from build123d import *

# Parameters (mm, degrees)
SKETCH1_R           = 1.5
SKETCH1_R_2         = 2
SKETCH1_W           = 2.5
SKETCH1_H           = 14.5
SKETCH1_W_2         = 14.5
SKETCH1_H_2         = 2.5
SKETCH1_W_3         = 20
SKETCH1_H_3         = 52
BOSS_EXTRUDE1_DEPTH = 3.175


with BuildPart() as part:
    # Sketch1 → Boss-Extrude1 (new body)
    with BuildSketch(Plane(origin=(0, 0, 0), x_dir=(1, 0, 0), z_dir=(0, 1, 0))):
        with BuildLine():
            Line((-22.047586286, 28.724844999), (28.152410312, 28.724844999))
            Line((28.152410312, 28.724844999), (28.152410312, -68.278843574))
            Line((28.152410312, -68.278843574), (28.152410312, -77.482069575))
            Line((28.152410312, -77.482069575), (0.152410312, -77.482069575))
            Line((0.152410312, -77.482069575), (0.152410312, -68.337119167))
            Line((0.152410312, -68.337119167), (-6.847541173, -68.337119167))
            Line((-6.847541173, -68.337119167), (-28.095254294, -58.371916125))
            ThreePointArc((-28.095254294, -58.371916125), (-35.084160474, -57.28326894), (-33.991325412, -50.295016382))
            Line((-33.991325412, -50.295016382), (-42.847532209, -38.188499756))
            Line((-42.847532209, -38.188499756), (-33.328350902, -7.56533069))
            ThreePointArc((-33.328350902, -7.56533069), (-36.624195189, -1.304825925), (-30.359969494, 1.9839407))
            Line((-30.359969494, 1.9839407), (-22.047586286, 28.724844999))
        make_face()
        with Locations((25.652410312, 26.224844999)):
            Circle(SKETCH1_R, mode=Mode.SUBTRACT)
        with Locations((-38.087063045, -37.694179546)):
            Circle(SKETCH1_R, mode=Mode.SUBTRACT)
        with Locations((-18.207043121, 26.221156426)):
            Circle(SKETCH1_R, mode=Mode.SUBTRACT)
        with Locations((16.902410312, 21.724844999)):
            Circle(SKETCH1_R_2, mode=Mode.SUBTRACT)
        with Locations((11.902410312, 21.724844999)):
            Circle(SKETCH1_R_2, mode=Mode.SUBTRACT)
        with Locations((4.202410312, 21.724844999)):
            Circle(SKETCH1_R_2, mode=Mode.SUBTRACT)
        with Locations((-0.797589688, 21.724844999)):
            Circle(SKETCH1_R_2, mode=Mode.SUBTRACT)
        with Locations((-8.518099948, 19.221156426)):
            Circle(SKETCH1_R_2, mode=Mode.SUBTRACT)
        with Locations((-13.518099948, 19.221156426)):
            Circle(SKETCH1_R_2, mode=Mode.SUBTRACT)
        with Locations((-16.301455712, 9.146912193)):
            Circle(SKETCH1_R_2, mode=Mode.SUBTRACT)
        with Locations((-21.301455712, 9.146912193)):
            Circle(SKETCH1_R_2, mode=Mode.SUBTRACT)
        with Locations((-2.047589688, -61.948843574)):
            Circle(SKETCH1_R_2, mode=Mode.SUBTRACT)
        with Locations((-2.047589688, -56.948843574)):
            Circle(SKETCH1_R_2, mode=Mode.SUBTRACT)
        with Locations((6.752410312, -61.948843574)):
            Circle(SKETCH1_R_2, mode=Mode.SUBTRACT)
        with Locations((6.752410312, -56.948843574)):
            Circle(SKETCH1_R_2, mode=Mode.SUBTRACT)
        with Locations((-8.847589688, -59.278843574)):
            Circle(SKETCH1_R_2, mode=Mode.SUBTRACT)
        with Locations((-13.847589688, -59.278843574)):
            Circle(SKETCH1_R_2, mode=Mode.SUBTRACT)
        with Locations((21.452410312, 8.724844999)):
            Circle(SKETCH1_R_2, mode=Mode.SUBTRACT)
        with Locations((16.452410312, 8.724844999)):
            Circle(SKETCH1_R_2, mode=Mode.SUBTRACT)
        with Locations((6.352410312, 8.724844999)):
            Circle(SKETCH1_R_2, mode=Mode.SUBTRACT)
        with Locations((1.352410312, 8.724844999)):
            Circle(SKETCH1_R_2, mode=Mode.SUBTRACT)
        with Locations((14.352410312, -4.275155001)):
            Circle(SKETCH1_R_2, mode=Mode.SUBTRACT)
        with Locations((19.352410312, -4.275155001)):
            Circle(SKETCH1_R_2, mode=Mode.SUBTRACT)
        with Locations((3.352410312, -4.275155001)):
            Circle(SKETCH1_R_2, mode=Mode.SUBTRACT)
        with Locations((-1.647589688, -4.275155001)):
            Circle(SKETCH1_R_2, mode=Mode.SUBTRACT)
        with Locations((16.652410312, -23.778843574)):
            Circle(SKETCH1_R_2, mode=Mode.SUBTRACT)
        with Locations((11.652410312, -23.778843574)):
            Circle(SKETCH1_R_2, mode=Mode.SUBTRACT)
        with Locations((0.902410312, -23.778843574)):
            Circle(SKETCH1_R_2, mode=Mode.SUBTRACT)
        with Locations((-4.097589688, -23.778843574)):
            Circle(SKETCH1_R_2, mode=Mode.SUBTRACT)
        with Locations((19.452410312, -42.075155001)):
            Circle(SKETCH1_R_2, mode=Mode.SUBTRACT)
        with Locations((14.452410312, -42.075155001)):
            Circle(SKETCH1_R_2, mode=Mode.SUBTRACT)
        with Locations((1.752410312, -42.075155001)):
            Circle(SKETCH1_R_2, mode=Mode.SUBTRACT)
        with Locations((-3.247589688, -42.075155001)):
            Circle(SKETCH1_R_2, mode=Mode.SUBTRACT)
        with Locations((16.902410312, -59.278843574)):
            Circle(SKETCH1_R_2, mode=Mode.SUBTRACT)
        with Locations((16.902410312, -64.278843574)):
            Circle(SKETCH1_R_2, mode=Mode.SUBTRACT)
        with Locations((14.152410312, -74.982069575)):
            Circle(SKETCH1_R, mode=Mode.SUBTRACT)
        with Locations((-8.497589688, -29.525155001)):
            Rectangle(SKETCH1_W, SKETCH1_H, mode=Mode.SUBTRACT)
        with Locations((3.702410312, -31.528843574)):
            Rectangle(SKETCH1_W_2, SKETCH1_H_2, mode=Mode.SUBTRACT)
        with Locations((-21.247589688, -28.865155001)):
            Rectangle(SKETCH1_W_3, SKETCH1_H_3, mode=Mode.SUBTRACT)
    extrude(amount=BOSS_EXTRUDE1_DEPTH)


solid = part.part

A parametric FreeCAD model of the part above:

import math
import FreeCAD as App
import Part
import Sketcher

doc = App.newDocument("Part")
params = doc.addObject("Spreadsheet::Sheet", "Params")
for row, (alias, value) in enumerate([
    ("sketch1_diameter", "3 mm"),
    ("sketch1_diameter2", "4 mm"),
    ("sketch1_diameter3", "4 mm"),
    ("sketch1_diameter4", "4 mm"),
    ("sketch1_diameter5", "4 mm"),
    ("pad1_length", "3.175 mm"),
], start=1):
    params.set(f"A{row}", alias)
    params.set(f"B{row}", "=" + value)
    params.setAlias(f"B{row}", alias)

body = doc.addObject("PartDesign::Body", "Body")

sketch1 = doc.addObject("Sketcher::SketchObject", "Sketch")
body.addObject(sketch1)
sketch1.AttachmentSupport = (doc.XZ_Plane, [""])
sketch1.MapMode = "FlatFace"
sketch1.addGeometry([
    Part.LineSegment(App.Vector(28.15241, -28.724845, 0), App.Vector(-22.047586, -28.724845, 0)),
    Part.LineSegment(App.Vector(-22.047586, -28.724845, 0), App.Vector(-30.359969, -1.983941, 0)),
    Part.ArcOfCircle(Part.Circle(App.Vector(-31.849556, 2.789018, 0), App.Vector(0, 0, 1), 5), math.radians(107.203049), math.radians(287.33256)),
    Part.LineSegment(App.Vector(-33.328351, 7.565331, 0), App.Vector(-42.847532, 38.1885, 0)),
    Part.LineSegment(App.Vector(-42.847532, 38.1885, 0), App.Vector(-33.991325, 50.295016, 0)),
    Part.ArcOfCircle(Part.Circle(App.Vector(-31.04571, 54.335233, 0), App.Vector(0, 0, 1), 5), math.radians(53.836526), math.radians(233.905194)),
    Part.LineSegment(App.Vector(-28.095254, 58.371916, 0), App.Vector(-6.847541, 68.337119, 0)),
    Part.LineSegment(App.Vector(-6.847541, 68.337119, 0), App.Vector(0.15241, 68.337119, 0)),
    Part.LineSegment(App.Vector(0.15241, 68.337119, 0), App.Vector(0.15241, 77.48207, 0)),
    Part.LineSegment(App.Vector(0.15241, 77.48207, 0), App.Vector(28.15241, 77.48207, 0)),
    Part.LineSegment(App.Vector(28.15241, 77.48207, 0), App.Vector(28.15241, -28.724845, 0)),
    Part.Circle(App.Vector(14.15241, 74.98207, 0), App.Vector(0, 0, 1), 1.5),
    Part.Circle(App.Vector(16.90241, 64.278844, 0), App.Vector(0, 0, 1), 2),
    Part.Circle(App.Vector(16.90241, 59.278844, 0), App.Vector(0, 0, 1), 2),
    Part.Circle(App.Vector(6.75241, 61.948844, 0), App.Vector(0, 0, 1), 2),
    Part.Circle(App.Vector(6.75241, 56.948844, 0), App.Vector(0, 0, 1), 2),
    Part.Circle(App.Vector(-2.04759, 61.948844, 0), App.Vector(0, 0, 1), 2),
    Part.Circle(App.Vector(-2.04759, 56.948844, 0), App.Vector(0, 0, 1), 2),
    Part.Circle(App.Vector(19.45241, 42.075155, 0), App.Vector(0, 0, 1), 2),
    Part.Circle(App.Vector(14.45241, 42.075155, 0), App.Vector(0, 0, 1), 2),
    Part.Circle(App.Vector(1.75241, 42.075155, 0), App.Vector(0, 0, 1), 2),
    Part.Circle(App.Vector(-3.24759, 42.075155, 0), App.Vector(0, 0, 1), 2),
    Part.LineSegment(App.Vector(-3.54759, 32.778844, 0), App.Vector(-3.54759, 30.278844, 0)),
    Part.LineSegment(App.Vector(-3.54759, 30.278844, 0), App.Vector(10.95241, 30.278844, 0)),
    Part.LineSegment(App.Vector(10.95241, 30.278844, 0), App.Vector(10.95241, 32.778844, 0)),
    Part.LineSegment(App.Vector(10.95241, 32.778844, 0), App.Vector(-3.54759, 32.778844, 0)),
    Part.Circle(App.Vector(-8.84759, 59.278844, 0), App.Vector(0, 0, 1), 2),
    Part.Circle(App.Vector(-13.84759, 59.278844, 0), App.Vector(0, 0, 1), 2),
    Part.LineSegment(App.Vector(-9.74759, 36.775155, 0), App.Vector(-9.74759, 22.275155, 0)),
    Part.LineSegment(App.Vector(-9.74759, 22.275155, 0), App.Vector(-7.24759, 22.275155, 0)),
    Part.LineSegment(App.Vector(-7.24759, 22.275155, 0), App.Vector(-7.24759, 36.775155, 0)),
    Part.LineSegment(App.Vector(-7.24759, 36.775155, 0), App.Vector(-9.74759, 36.775155, 0)),
    Part.LineSegment(App.Vector(-31.24759, 54.865155, 0), App.Vector(-31.24759, 2.865155, 0)),
    Part.LineSegment(App.Vector(-31.24759, 2.865155, 0), App.Vector(-11.24759, 2.865155, 0)),
    Part.LineSegment(App.Vector(-11.24759, 2.865155, 0), App.Vector(-11.24759, 54.865155, 0)),
    Part.LineSegment(App.Vector(-11.24759, 54.865155, 0), App.Vector(-31.24759, 54.865155, 0)),
    Part.Circle(App.Vector(-38.087063, 37.69418, 0), App.Vector(0, 0, 1), 1.5),
    Part.Circle(App.Vector(16.65241, 23.778844, 0), App.Vector(0, 0, 1), 2),
    Part.Circle(App.Vector(11.65241, 23.778844, 0), App.Vector(0, 0, 1), 2),
    Part.Circle(App.Vector(19.35241, 4.275155, 0), App.Vector(0, 0, 1), 2),
    Part.Circle(App.Vector(14.35241, 4.275155, 0), App.Vector(0, 0, 1), 2),
    Part.Circle(App.Vector(0.90241, 23.778844, 0), App.Vector(0, 0, 1), 2),
    Part.Circle(App.Vector(-4.09759, 23.778844, 0), App.Vector(0, 0, 1), 2),
    Part.Circle(App.Vector(3.35241, 4.275155, 0), App.Vector(0, 0, 1), 2),
    Part.Circle(App.Vector(-1.64759, 4.275155, 0), App.Vector(0, 0, 1), 2),
    Part.Circle(App.Vector(21.45241, -8.724845, 0), App.Vector(0, 0, 1), 2),
    Part.Circle(App.Vector(16.45241, -8.724845, 0), App.Vector(0, 0, 1), 2),
    Part.Circle(App.Vector(25.65241, -26.224845, 0), App.Vector(0, 0, 1), 1.5),
    Part.Circle(App.Vector(16.90241, -21.724845, 0), App.Vector(0, 0, 1), 2),
    Part.Circle(App.Vector(11.90241, -21.724845, 0), App.Vector(0, 0, 1), 2),
    Part.Circle(App.Vector(6.35241, -8.724845, 0), App.Vector(0, 0, 1), 2),
    Part.Circle(App.Vector(1.35241, -8.724845, 0), App.Vector(0, 0, 1), 2),
    Part.Circle(App.Vector(4.20241, -21.724845, 0), App.Vector(0, 0, 1), 2),
    Part.Circle(App.Vector(-0.79759, -21.724845, 0), App.Vector(0, 0, 1), 2),
    Part.Circle(App.Vector(-16.301456, -9.146912, 0), App.Vector(0, 0, 1), 2),
    Part.Circle(App.Vector(-21.301456, -9.146912, 0), App.Vector(0, 0, 1), 2),
    Part.Circle(App.Vector(-8.5181, -19.221156, 0), App.Vector(0, 0, 1), 2),
    Part.Circle(App.Vector(-13.5181, -19.221156, 0), App.Vector(0, 0, 1), 2),
    Part.Circle(App.Vector(-18.207043, -26.221156, 0), App.Vector(0, 0, 1), 1.5),
], False)
sketch1.addConstraint([
    Sketcher.Constraint("Coincident", 0, 2, 1, 1),
    Sketcher.Constraint("Coincident", 1, 2, 2, 2),
    Sketcher.Constraint("Coincident", 2, 1, 3, 1),
    Sketcher.Constraint("Coincident", 3, 2, 4, 1),
    Sketcher.Constraint("Coincident", 4, 2, 5, 2),
    Sketcher.Constraint("Coincident", 5, 1, 6, 1),
    Sketcher.Constraint("Coincident", 6, 2, 7, 1),
    Sketcher.Constraint("Coincident", 7, 2, 8, 1),
    Sketcher.Constraint("Coincident", 8, 2, 9, 1),
    Sketcher.Constraint("Coincident", 9, 2, 10, 1),
    Sketcher.Constraint("Coincident", 10, 2, 0, 1),
    Sketcher.Constraint("Coincident", 22, 2, 23, 1),
    Sketcher.Constraint("Coincident", 23, 2, 24, 1),
    Sketcher.Constraint("Coincident", 24, 2, 25, 1),
    Sketcher.Constraint("Coincident", 25, 2, 22, 1),
    Sketcher.Constraint("Coincident", 28, 2, 29, 1),
    Sketcher.Constraint("Coincident", 29, 2, 30, 1),
    Sketcher.Constraint("Coincident", 30, 2, 31, 1),
    Sketcher.Constraint("Coincident", 31, 2, 28, 1),
    Sketcher.Constraint("Coincident", 32, 2, 33, 1),
    Sketcher.Constraint("Coincident", 33, 2, 34, 1),
    Sketcher.Constraint("Coincident", 34, 2, 35, 1),
    Sketcher.Constraint("Coincident", 35, 2, 32, 1),
    Sketcher.Constraint("Horizontal", 0),
    Sketcher.Constraint("Horizontal", 7),
    Sketcher.Constraint("Vertical", 8),
    Sketcher.Constraint("Horizontal", 9),
    Sketcher.Constraint("Vertical", 10),
    Sketcher.Constraint("Vertical", 22),
    Sketcher.Constraint("Horizontal", 23),
    Sketcher.Constraint("Vertical", 24),
    Sketcher.Constraint("Horizontal", 25),
    Sketcher.Constraint("Vertical", 28),
    Sketcher.Constraint("Horizontal", 29),
    Sketcher.Constraint("Vertical", 30),
    Sketcher.Constraint("Horizontal", 31),
    Sketcher.Constraint("Vertical", 32),
    Sketcher.Constraint("Horizontal", 33),
    Sketcher.Constraint("Vertical", 34),
    Sketcher.Constraint("Horizontal", 35),
    Sketcher.Constraint("Diameter", 11, 3.0),
    Sketcher.Constraint("Diameter", 12, 4.0),
    Sketcher.Constraint("Diameter", 13, 4.0),
    Sketcher.Constraint("Diameter", 14, 4.0),
    Sketcher.Constraint("Diameter", 15, 4.0),
    Sketcher.Constraint("Diameter", 16, 4.0),
    Sketcher.Constraint("Diameter", 17, 4.0),
    Sketcher.Constraint("Diameter", 18, 4.0),
    Sketcher.Constraint("Diameter", 19, 4.0),
    Sketcher.Constraint("Diameter", 20, 4.0),
    Sketcher.Constraint("Diameter", 21, 4.0),
    Sketcher.Constraint("Diameter", 26, 4.0),
    Sketcher.Constraint("Diameter", 27, 4.0),
    Sketcher.Constraint("Diameter", 36, 3.0),
    Sketcher.Constraint("Diameter", 37, 4.0),
    Sketcher.Constraint("Diameter", 38, 4.0),
    Sketcher.Constraint("Diameter", 39, 4.0),
    Sketcher.Constraint("Diameter", 40, 4.0),
    Sketcher.Constraint("Diameter", 41, 4.0),
    Sketcher.Constraint("Diameter", 42, 4.0),
    Sketcher.Constraint("Diameter", 43, 4.0),
    Sketcher.Constraint("Diameter", 44, 4.0),
    Sketcher.Constraint("Diameter", 45, 4.0),
    Sketcher.Constraint("Diameter", 46, 4.0),
    Sketcher.Constraint("Diameter", 47, 3.0),
    Sketcher.Constraint("Diameter", 48, 4.0),
    Sketcher.Constraint("Diameter", 49, 4.0),
    Sketcher.Constraint("Diameter", 50, 4.0),
    Sketcher.Constraint("Diameter", 51, 4.0),
    Sketcher.Constraint("Diameter", 52, 4.0),
    Sketcher.Constraint("Diameter", 53, 4.0),
    Sketcher.Constraint("Diameter", 54, 4.0),
    Sketcher.Constraint("Diameter", 55, 4.0),
    Sketcher.Constraint("Diameter", 56, 4.0),
    Sketcher.Constraint("Diameter", 57, 4.0),
    Sketcher.Constraint("Diameter", 58, 3.0),
    Sketcher.Constraint("Radius", 2, 5.0),
    Sketcher.Constraint("Radius", 5, 5.0),
    Sketcher.Constraint("DistanceX", 9, 1, 9, 2, 28.0),
    Sketcher.Constraint("DistanceX", 33, 1, 33, 2, 20.0),
    Sketcher.Constraint("DistanceY", 32, 2, 32, 1, 52.0),
    Sketcher.Constraint("DistanceX", 23, 1, 23, 2, 14.5),
    Sketcher.Constraint("DistanceX", 29, 1, 29, 2, 2.5),
    Sketcher.Constraint("DistanceY", 22, 2, 22, 1, 2.5),
    Sketcher.Constraint("DistanceY", 28, 2, 28, 1, 14.5),
    Sketcher.Constraint("Distance", 6, 23.468502),
    Sketcher.Constraint("DistanceX", 7, 1, 7, 2, 6.999951),
    Sketcher.Constraint("DistanceY", 8, 1, 8, 2, 9.14495),
    Sketcher.Constraint("DistanceX", 56, 3, -1, 1, 8.5181),
    Sketcher.Constraint("DistanceX", 57, 3, -1, 1, 13.5181),
    Sketcher.Constraint("DistanceY", -1, 1, 3, 2, 38.1885),
    Sketcher.Constraint("Distance", 3, 32.068572),
    Sketcher.Constraint("DistanceX", 0, 2, 0, 1, 50.199997),
    Sketcher.Constraint("DistanceY", 10, 2, 10, 1, 106.206915),
    Sketcher.Constraint("DistanceX", 5, 3, -1, 1, 31.04571),
    Sketcher.Constraint("DistanceX", -1, 1, 11, 3, 14.15241),
    Sketcher.Constraint("DistanceY", -1, 1, 11, 3, 74.98207),
    Sketcher.Constraint("DistanceX", -1, 1, 12, 3, 16.90241),
    Sketcher.Constraint("DistanceX", -1, 1, 13, 3, 16.90241),
    Sketcher.Constraint("DistanceX", -1, 1, 14, 3, 6.75241),
    Sketcher.Constraint("DistanceX", -1, 1, 15, 3, 6.75241),
    Sketcher.Constraint("DistanceX", 16, 3, -1, 1, 2.04759),
    Sketcher.Constraint("DistanceX", 17, 3, -1, 1, 2.04759),
    Sketcher.Constraint("DistanceX", -1, 1, 18, 3, 19.45241),
    Sketcher.Constraint("DistanceX", -1, 1, 19, 3, 14.45241),
    Sketcher.Constraint("DistanceX", -1, 1, 20, 3, 1.75241),
    Sketcher.Constraint("DistanceX", 21, 3, -1, 1, 3.24759),
    Sketcher.Constraint("DistanceX", 26, 3, -1, 1, 8.84759),
    Sketcher.Constraint("DistanceX", 27, 3, -1, 1, 13.84759),
    Sketcher.Constraint("DistanceY", -1, 1, 36, 3, 37.69418),
    Sketcher.Constraint("DistanceX", -1, 1, 37, 3, 16.65241),
    Sketcher.Constraint("DistanceX", -1, 1, 38, 3, 11.65241),
    Sketcher.Constraint("DistanceX", -1, 1, 39, 3, 19.35241),
    Sketcher.Constraint("DistanceX", -1, 1, 40, 3, 14.35241),
    Sketcher.Constraint("DistanceX", -1, 1, 41, 3, 0.90241),
    Sketcher.Constraint("DistanceX", 42, 3, -1, 1, 4.09759),
    Sketcher.Constraint("DistanceX", -1, 1, 43, 3, 3.35241),
    Sketcher.Constraint("DistanceX", 44, 3, -1, 1, 1.64759),
    Sketcher.Constraint("DistanceX", -1, 1, 45, 3, 21.45241),
    Sketcher.Constraint("DistanceX", -1, 1, 46, 3, 16.45241),
    Sketcher.Constraint("DistanceX", -1, 1, 47, 3, 25.65241),
    Sketcher.Constraint("DistanceX", -1, 1, 48, 3, 16.90241),
    Sketcher.Constraint("DistanceX", -1, 1, 49, 3, 11.90241),
    Sketcher.Constraint("DistanceX", -1, 1, 50, 3, 6.35241),
    Sketcher.Constraint("DistanceX", -1, 1, 51, 3, 1.35241),
    Sketcher.Constraint("DistanceX", -1, 1, 52, 3, 4.20241),
    Sketcher.Constraint("DistanceX", 53, 3, -1, 1, 0.79759),
    Sketcher.Constraint("DistanceX", 1, 2, -1, 1, 30.359969),
    Sketcher.Constraint("DistanceY", 1, 2, -1, 1, 1.983941),
    Sketcher.Constraint("DistanceX", 2, 1, -1, 1, 33.328351),
    Sketcher.Constraint("DistanceX", 6, 2, -1, 1, 6.847541),
    Sketcher.Constraint("DistanceY", -1, 1, 6, 2, 68.337119),
    Sketcher.Constraint("DistanceX", 22, 2, -1, 1, 3.54759),
    Sketcher.Constraint("DistanceX", 28, 2, -1, 1, 9.74759),
    Sketcher.Constraint("DistanceX", 32, 2, -1, 1, 31.24759),
    Sketcher.Constraint("Distance", 4, 15.000005),
    Sketcher.Constraint("DistanceX", 2, 3, -1, 1, 31.849556),
    Sketcher.Constraint("DistanceY", -1, 1, 12, 3, 64.278844),
    Sketcher.Constraint("DistanceY", -1, 1, 13, 3, 59.278844),
    Sketcher.Constraint("DistanceY", -1, 1, 14, 3, 61.948844),
    Sketcher.Constraint("DistanceY", -1, 1, 15, 3, 56.948844),
    Sketcher.Constraint("DistanceY", -1, 1, 16, 3, 61.948844),
    Sketcher.Constraint("DistanceY", -1, 1, 17, 3, 56.948844),
    Sketcher.Constraint("DistanceY", -1, 1, 18, 3, 42.075155),
    Sketcher.Constraint("DistanceY", -1, 1, 19, 3, 42.075155),
    Sketcher.Constraint("DistanceY", -1, 1, 20, 3, 42.075155),
    Sketcher.Constraint("DistanceY", -1, 1, 21, 3, 42.075155),
    Sketcher.Constraint("DistanceY", -1, 1, 26, 3, 59.278844),
    Sketcher.Constraint("DistanceY", -1, 1, 27, 3, 59.278844),
    Sketcher.Constraint("DistanceX", 36, 3, -1, 1, 38.087063),
    Sketcher.Constraint("DistanceY", -1, 1, 37, 3, 23.778844),
    Sketcher.Constraint("DistanceY", -1, 1, 38, 3, 23.778844),
    Sketcher.Constraint("DistanceY", -1, 1, 39, 3, 4.275155),
    Sketcher.Constraint("DistanceY", -1, 1, 40, 3, 4.275155),
    Sketcher.Constraint("DistanceY", -1, 1, 41, 3, 23.778844),
    Sketcher.Constraint("DistanceY", -1, 1, 42, 3, 23.778844),
    Sketcher.Constraint("DistanceY", -1, 1, 43, 3, 4.275155),
    Sketcher.Constraint("DistanceY", -1, 1, 44, 3, 4.275155),
    Sketcher.Constraint("DistanceY", 45, 3, -1, 1, 8.724845),
    Sketcher.Constraint("DistanceY", 46, 3, -1, 1, 8.724845),
    Sketcher.Constraint("DistanceY", 47, 3, -1, 1, 26.224845),
    Sketcher.Constraint("DistanceY", 48, 3, -1, 1, 21.724845),
    Sketcher.Constraint("DistanceY", 49, 3, -1, 1, 21.724845),
    Sketcher.Constraint("DistanceY", 50, 3, -1, 1, 8.724845),
    Sketcher.Constraint("DistanceY", 51, 3, -1, 1, 8.724845),
    Sketcher.Constraint("DistanceY", 52, 3, -1, 1, 21.724845),
    Sketcher.Constraint("DistanceY", 53, 3, -1, 1, 21.724845),
    Sketcher.Constraint("DistanceX", 54, 3, -1, 1, 16.301456),
    Sketcher.Constraint("DistanceY", 54, 3, -1, 1, 9.146912),
    Sketcher.Constraint("DistanceX", 55, 3, -1, 1, 21.301456),
    Sketcher.Constraint("DistanceY", 55, 3, -1, 1, 9.146912),
    Sketcher.Constraint("DistanceY", 56, 3, -1, 1, 19.221156),
    Sketcher.Constraint("DistanceY", 57, 3, -1, 1, 19.221156),
    Sketcher.Constraint("DistanceX", 58, 3, -1, 1, 18.207043),
    Sketcher.Constraint("DistanceY", 58, 3, -1, 1, 26.221156),
    Sketcher.Constraint("DistanceX", 4, 2, -1, 1, 33.991325),
    Sketcher.Constraint("DistanceY", -1, 1, 22, 2, 30.278844),
    Sketcher.Constraint("DistanceY", -1, 1, 28, 2, 22.275155),
    Sketcher.Constraint("DistanceY", -1, 1, 32, 2, 2.865155),
])
sketch1.setExpression("Constraints[40]", "Params.sketch1_diameter")
sketch1.setExpression("Constraints[41]", "Params.sketch1_diameter2")
sketch1.setExpression("Constraints[42]", "Params.sketch1_diameter3")
sketch1.setExpression("Constraints[43]", "Params.sketch1_diameter4")
sketch1.setExpression("Constraints[44]", "Params.sketch1_diameter5")
pad1 = doc.addObject("PartDesign::Pad", "Pad")
body.addObject(pad1)
pad1.Profile = sketch1
pad1.setExpression("Length", "Params.pad1_length")
pad1.Reversed = True

doc.recompute()
